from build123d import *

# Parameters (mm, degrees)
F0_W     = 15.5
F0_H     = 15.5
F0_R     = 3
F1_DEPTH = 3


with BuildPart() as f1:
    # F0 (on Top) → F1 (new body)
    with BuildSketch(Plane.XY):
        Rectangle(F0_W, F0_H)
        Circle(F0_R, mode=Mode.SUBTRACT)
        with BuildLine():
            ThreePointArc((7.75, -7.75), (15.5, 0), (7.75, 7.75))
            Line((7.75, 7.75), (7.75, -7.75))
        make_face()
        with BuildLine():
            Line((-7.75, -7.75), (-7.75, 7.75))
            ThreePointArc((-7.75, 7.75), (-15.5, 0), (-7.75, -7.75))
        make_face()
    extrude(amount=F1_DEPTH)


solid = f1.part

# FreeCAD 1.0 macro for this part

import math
import FreeCAD as App
import Part
import Sketcher

doc = App.newDocument("Part")
body = doc.addObject("PartDesign::Body", "Body")

# Sketch on XY plane
sketch1 = body.newObject("Sketcher::SketchObject", "Sketch")
sketch1.AttachmentSupport = (doc.getObject("XY_Plane"), [""])
sketch1.MapMode = "FlatFace"
sketch1.addGeometry(Part.LineSegment(App.Vector(-7.8, -7.8, 0), App.Vector(7.8, -7.8, 0)), False)
sketch1.addGeometry(Part.ArcOfCircle(Part.Circle(App.Vector(7.8, 0, 0), App.Vector(0, 0, 1), 7.8), math.radians(-90), math.radians(90)), False)
sketch1.addGeometry(Part.LineSegment(App.Vector(7.8, 7.8, 0), App.Vector(-7.8, 7.8, 0)), False)
sketch1.addGeometry(Part.ArcOfCircle(Part.Circle(App.Vector(-7.8, 0, 0), App.Vector(0, 0, 1), 7.8), math.radians(90), math.radians(270)), False)
sketch1.addGeometry(Part.Circle(App.Vector(0, 0, 0), App.Vector(0, 0, 1), 3), False)
sketch1.addConstraint(Sketcher.Constraint("Tangent", 0, 2, 1, 1))
sketch1.addConstraint(Sketcher.Constraint("Tangent", 1, 2, 2, 1))
sketch1.addConstraint(Sketcher.Constraint("Tangent", 2, 2, 3, 1))
sketch1.addConstraint(Sketcher.Constraint("Tangent", 3, 2, 0, 1))
sketch1.addConstraint(Sketcher.Constraint("Horizontal", 0))
sketch1.addConstraint(Sketcher.Constraint("Horizontal", 2))
sketch1.addConstraint(Sketcher.Constraint("Coincident", 4, 3, -1, 1))
sketch1.addConstraint(Sketcher.Constraint("Symmetric", 1, 3, 3, 3, -1, 1))
sketch1.addConstraint(Sketcher.Constraint("Diameter", 4, 6.0))
sketch1.addConstraint(Sketcher.Constraint("Radius", 1, 7.75))
sketch1.addConstraint(Sketcher.Constraint("DistanceX", 0, 1, 0, 2, 15.5))
pad1 = body.newObject("PartDesign::Pad", "Pad")
pad1.Profile = sketch1
pad1.Length = 3

doc.recompute()
